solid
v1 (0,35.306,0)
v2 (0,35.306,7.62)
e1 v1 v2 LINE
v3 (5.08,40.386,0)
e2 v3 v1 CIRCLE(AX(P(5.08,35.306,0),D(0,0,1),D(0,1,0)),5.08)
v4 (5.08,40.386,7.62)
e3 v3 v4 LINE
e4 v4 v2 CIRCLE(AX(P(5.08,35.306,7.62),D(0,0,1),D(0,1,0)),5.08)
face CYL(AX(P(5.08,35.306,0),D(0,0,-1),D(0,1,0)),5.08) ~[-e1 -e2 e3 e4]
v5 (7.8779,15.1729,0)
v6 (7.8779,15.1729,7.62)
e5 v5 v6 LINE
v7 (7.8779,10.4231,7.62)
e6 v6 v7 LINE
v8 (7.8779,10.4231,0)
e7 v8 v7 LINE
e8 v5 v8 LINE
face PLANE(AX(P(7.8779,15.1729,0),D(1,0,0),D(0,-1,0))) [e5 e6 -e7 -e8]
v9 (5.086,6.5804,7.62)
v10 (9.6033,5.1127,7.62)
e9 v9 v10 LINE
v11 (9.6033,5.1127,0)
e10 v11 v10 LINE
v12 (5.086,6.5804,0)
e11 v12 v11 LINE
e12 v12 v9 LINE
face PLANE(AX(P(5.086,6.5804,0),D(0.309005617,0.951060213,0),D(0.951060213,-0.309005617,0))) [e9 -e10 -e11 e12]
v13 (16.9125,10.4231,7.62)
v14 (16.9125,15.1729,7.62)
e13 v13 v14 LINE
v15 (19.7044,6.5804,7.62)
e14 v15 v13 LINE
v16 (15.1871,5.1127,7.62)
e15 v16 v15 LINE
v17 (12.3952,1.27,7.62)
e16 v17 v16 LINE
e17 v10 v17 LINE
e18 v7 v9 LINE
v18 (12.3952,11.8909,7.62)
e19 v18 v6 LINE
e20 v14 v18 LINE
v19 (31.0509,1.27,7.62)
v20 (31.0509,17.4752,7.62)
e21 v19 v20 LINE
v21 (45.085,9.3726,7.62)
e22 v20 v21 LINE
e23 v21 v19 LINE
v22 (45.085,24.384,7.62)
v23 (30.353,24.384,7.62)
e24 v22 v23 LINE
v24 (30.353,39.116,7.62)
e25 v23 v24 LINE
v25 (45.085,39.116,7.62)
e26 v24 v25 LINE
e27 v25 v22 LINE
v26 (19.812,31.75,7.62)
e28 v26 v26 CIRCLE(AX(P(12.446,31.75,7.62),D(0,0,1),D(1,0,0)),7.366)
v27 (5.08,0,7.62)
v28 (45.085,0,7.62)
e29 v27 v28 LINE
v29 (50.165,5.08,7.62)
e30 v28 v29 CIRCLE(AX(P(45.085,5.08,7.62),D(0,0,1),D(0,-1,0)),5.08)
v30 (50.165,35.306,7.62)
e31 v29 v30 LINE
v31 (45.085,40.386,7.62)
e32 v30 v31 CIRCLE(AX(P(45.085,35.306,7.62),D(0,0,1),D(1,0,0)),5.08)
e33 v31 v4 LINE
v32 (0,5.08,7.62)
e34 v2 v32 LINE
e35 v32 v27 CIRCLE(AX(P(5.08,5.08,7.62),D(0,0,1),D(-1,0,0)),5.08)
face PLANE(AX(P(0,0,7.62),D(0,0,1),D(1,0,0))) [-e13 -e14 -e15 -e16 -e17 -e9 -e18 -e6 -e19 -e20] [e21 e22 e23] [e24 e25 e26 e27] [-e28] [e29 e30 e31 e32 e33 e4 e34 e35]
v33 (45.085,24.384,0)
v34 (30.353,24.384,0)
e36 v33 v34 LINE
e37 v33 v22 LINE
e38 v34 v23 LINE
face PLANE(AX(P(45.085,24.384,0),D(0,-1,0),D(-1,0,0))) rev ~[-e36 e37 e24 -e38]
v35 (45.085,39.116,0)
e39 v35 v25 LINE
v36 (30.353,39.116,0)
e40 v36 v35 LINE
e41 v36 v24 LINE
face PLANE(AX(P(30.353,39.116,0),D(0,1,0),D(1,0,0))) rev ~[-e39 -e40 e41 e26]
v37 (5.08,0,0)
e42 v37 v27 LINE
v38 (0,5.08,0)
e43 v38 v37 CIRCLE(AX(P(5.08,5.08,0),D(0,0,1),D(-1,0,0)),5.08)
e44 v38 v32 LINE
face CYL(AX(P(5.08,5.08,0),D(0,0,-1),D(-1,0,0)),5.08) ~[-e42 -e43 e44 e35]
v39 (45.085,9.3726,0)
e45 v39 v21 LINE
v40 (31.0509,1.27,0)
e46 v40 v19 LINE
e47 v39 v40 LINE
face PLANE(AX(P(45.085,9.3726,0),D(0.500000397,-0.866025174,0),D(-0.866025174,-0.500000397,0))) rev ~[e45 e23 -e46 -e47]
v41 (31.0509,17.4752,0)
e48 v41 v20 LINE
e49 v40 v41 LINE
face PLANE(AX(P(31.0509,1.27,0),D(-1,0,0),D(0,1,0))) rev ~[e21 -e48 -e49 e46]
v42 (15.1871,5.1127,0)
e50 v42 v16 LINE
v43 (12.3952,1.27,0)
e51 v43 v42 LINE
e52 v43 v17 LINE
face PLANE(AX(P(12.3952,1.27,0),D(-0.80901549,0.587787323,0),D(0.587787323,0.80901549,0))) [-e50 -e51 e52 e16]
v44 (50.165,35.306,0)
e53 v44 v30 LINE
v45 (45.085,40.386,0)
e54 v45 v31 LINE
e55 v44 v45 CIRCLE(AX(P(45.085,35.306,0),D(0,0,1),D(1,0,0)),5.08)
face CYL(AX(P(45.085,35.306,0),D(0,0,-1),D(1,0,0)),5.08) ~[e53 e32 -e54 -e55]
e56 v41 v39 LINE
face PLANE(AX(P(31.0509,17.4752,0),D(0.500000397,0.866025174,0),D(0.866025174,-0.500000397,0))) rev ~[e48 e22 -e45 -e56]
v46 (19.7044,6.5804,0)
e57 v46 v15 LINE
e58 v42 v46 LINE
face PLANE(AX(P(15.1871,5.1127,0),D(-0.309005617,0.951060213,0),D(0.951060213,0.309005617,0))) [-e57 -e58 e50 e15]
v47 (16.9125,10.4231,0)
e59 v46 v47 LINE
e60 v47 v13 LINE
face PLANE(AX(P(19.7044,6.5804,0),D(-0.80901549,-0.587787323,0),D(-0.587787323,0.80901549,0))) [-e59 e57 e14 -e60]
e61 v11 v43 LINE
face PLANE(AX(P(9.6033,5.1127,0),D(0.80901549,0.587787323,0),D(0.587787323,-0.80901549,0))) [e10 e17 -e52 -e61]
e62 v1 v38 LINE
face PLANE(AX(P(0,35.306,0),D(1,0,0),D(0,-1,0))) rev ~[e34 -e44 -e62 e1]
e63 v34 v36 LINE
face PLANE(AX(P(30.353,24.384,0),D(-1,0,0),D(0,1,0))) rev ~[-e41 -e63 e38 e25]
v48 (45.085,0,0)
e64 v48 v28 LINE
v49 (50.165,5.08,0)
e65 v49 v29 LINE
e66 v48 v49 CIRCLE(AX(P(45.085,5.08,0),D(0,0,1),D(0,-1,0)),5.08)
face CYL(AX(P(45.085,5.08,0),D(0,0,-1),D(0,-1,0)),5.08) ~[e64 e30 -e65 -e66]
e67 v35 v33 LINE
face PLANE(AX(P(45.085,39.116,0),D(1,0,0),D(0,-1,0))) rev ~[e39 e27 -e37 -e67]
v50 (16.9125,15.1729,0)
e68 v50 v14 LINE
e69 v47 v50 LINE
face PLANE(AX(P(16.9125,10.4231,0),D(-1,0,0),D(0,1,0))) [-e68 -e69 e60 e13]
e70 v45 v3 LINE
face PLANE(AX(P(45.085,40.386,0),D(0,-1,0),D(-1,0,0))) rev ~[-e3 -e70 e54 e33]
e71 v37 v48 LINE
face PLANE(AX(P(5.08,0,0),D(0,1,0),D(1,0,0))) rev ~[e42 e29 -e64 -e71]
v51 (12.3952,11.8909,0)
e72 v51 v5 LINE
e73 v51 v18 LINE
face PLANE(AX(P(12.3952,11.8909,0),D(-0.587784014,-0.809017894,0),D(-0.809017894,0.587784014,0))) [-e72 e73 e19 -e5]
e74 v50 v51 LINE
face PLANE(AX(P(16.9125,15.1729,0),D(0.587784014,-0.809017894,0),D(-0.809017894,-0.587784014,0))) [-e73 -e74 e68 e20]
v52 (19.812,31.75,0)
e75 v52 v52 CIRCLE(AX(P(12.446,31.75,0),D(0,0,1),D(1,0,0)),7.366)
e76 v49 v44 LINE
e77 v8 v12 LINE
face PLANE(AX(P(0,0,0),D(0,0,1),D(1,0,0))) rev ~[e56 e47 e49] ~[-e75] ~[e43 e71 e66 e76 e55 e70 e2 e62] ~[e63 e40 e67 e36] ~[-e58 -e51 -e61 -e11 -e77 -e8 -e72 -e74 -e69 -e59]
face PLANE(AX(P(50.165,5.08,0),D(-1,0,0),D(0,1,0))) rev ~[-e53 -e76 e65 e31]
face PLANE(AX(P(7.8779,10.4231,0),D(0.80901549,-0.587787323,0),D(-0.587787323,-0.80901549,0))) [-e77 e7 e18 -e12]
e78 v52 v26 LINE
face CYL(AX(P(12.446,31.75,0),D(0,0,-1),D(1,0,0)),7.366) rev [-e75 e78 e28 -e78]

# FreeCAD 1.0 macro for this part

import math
import FreeCAD as App
import Part
import Sketcher
from FreeCAD import Vector
Q = App.Units.Quantity

doc = App.newDocument("Part")
body = doc.addObject("PartDesign::Body", "Body")

# Sketch on XY plane
sketch1 = doc.addObject("Sketcher::SketchObject", "Sketch")
body.addObject(sketch1)
sketch1.AttachmentSupport = (doc.XY_Plane, [""])
sketch1.MapMode = "FlatFace"
sketch1.addGeometry(Part.ArcOfCircle(Part.Circle(Vector(5.08, 5.08, 0), Vector(0, 0, 1), 5.08), math.radians(180), math.radians(270)), False)
sketch1.addGeometry(Part.LineSegment(Vector(5.08, 0, 0), Vector(45.085, 0, 0)), False)
sketch1.addGeometry(Part.ArcOfCircle(Part.Circle(Vector(45.085, 5.08, 0), Vector(0, 0, 1), 5.08), math.radians(-90), math.radians(0)), False)
sketch1.addGeometry(Part.LineSegment(Vector(50.165, 5.08, 0), Vector(50.165, 35.306, 0)), False)
sketch1.addGeometry(Part.ArcOfCircle(Part.Circle(Vector(45.085, 35.306, 0), Vector(0, 0, 1), 5.08), math.radians(0), math.radians(90)), False)
sketch1.addGeometry(Part.LineSegment(Vector(45.085, 40.386, 0), Vector(5.08, 40.386, 0)), False)
sketch1.addGeometry(Part.ArcOfCircle(Part.Circle(Vector(5.08, 35.306, 0), Vector(0, 0, 1), 5.08), math.radians(90), math.radians(180)), False)
sketch1.addGeometry(Part.LineSegment(Vector(0, 35.306, 0), Vector(0, 5.08, 0)), False)
sketch1.addGeometry(Part.LineSegment(Vector(7.8779, 10.4231, 0), Vector(7.8779, 15.1729, 0)), False)
sketch1.addGeometry(Part.LineSegment(Vector(7.8779, 15.1729, 0), Vector(12.3952, 11.8909, 0)), False)
sketch1.addGeometry(Part.LineSegment(Vector(12.3952, 11.8909, 0), Vector(16.9125, 15.1729, 0)), False)
sketch1.addGeometry(Part.LineSegment(Vector(16.9125, 15.1729, 0), Vector(16.9125, 10.4231, 0)), False)
sketch1.addGeometry(Part.LineSegment(Vector(16.9125, 10.4231, 0), Vector(19.7044, 6.5804, 0)), False)
sketch1.addGeometry(Part.LineSegment(Vector(19.7044, 6.5804, 0), Vector(15.1871, 5.1127, 0)), False)
sketch1.addGeometry(Part.LineSegment(Vector(15.1871, 5.1127, 0), Vector(12.3952, 1.27, 0)), False)
sketch1.addGeometry(Part.LineSegment(Vector(12.3952, 1.27, 0), Vector(9.6033, 5.1127, 0)), False)
sketch1.addGeometry(Part.LineSegment(Vector(9.6033, 5.1127, 0), Vector(5.086, 6.5804, 0)), False)
sketch1.addGeometry(Part.LineSegment(Vector(5.086, 6.5804, 0), Vector(7.8779, 10.4231, 0)), False)
sketch1.addGeometry(Part.LineSegment(Vector(31.0509, 1.27, 0), Vector(31.0509, 17.4752, 0)), False)
sketch1.addGeometry(Part.LineSegment(Vector(31.0509, 17.4752, 0), Vector(45.085, 9.3726, 0)), False)
sketch1.addGeometry(Part.LineSegment(Vector(45.085, 9.3726, 0), Vector(31.0509, 1.27, 0)), False)
sketch1.addGeometry(Part.Circle(Vector(12.446, 31.75, 0), Vector(0, 0, 1), 7.366), False)
sketch1.addGeometry(Part.LineSegment(Vector(30.353, 24.384, 0), Vector(30.353, 39.116, 0)), False)
sketch1.addGeometry(Part.LineSegment(Vector(30.353, 39.116, 0), Vector(45.085, 39.116, 0)), False)
sketch1.addGeometry(Part.LineSegment(Vector(45.085, 39.116, 0), Vector(45.085, 24.384, 0)), False)
sketch1.addGeometry(Part.LineSegment(Vector(45.085, 24.384, 0), Vector(30.353, 24.384, 0)), False)
sketch1.addConstraint(Sketcher.Constraint("Tangent", 0, 2, 1, 1))
sketch1.addConstraint(Sketcher.Constraint("Tangent", 1, 2, 2, 1))
sketch1.addConstraint(Sketcher.Constraint("Tangent", 2, 2, 3, 1))
sketch1.addConstraint(Sketcher.Constraint("Tangent", 3, 2, 4, 1))
sketch1.addConstraint(Sketcher.Constraint("Tangent", 4, 2, 5, 1))
sketch1.addConstraint(Sketcher.Constraint("Tangent", 5, 2, 6, 1))
sketch1.addConstraint(Sketcher.Constraint("Tangent", 6, 2, 7, 1))
sketch1.addConstraint(Sketcher.Constraint("Tangent", 7, 2, 0, 1))
sketch1.addConstraint(Sketcher.Constraint("Coincident", 8, 2, 9, 1))
sketch1.addConstraint(Sketcher.Constraint("Coincident", 9, 2, 10, 1))
sketch1.addConstraint(Sketcher.Constraint("Coincident", 10, 2, 11, 1))
sketch1.addConstraint(Sketcher.Constraint("Coincident", 11, 2, 12, 1))
sketch1.addConstraint(Sketcher.Constraint("Coincident", 12, 2, 13, 1))
sketch1.addConstraint(Sketcher.Constraint("Coincident", 13, 2, 14, 1))
sketch1.addConstraint(Sketcher.Constraint("Coincident", 14, 2, 15, 1))
sketch1.addConstraint(Sketcher.Constraint("Coincident", 15, 2, 16, 1))
sketch1.addConstraint(Sketcher.Constraint("Coincident", 16, 2, 17, 1))
sketch1.addConstraint(Sketcher.Constraint("Coincident", 17, 2, 8, 1))
sketch1.addConstraint(Sketcher.Constraint("Coincident", 18, 2, 19, 1))
sketch1.addConstraint(Sketcher.Constraint("Coincident", 19, 2, 20, 1))
sketch1.addConstraint(Sketcher.Constraint("Coincident", 20, 2, 18, 1))
sketch1.addConstraint(Sketcher.Constraint("Coincident", 22, 2, 23, 1))
sketch1.addConstraint(Sketcher.Constraint("Coincident", 23, 2, 24, 1))
sketch1.addConstraint(Sketcher.Constraint("Coincident", 24, 2, 25, 1))
sketch1.addConstraint(Sketcher.Constraint("Coincident", 25, 2, 22, 1))
sketch1.addConstraint(Sketcher.Constraint("Horizontal", 1))
sketch1.addConstraint(Sketcher.Constraint("Vertical", 3))
sketch1.addConstraint(Sketcher.Constraint("Horizontal", 5))
sketch1.addConstraint(Sketcher.Constraint("Vertical", 7))
sketch1.addConstraint(Sketcher.Constraint("Vertical", 8))
sketch1.addConstraint(Sketcher.Constraint("Vertical", 11))
sketch1.addConstraint(Sketcher.Constraint("Vertical", 18))
sketch1.addConstraint(Sketcher.Constraint("Vertical", 22))
sketch1.addConstraint(Sketcher.Constraint("Horizontal", 23))
sketch1.addConstraint(Sketcher.Constraint("Vertical", 24))
sketch1.addConstraint(Sketcher.Constraint("Horizontal", 25))
sketch1.addConstraint(Sketcher.Constraint("Equal", 0, 2))
sketch1.addConstraint(Sketcher.Constraint("Equal", 2, 4))
sketch1.addConstraint(Sketcher.Constraint("Equal", 4, 6))
sketch1.addConstraint(Sketcher.Constraint("PointOnObject", 0, 2, -1))
sketch1.addConstraint(Sketcher.Constraint("PointOnObject", 6, 2, -2))
sketch1.addConstraint(Sketcher.Constraint("Perpendicular", 10, 12))
sketch1.addConstraint(Sketcher.Constraint("Perpendicular", 9, 14))
sketch1.addConstraint(Sketcher.Constraint("Parallel", 12, 15))
sketch1.addConstraint(Sketcher.Constraint("Parallel", 14, 17))
sketch1.addConstraint(Sketcher.Constraint("Horizontal", 8, 2, 10, 2))
sketch1.addConstraint(Sketcher.Constraint("Horizontal", 13, 2, 15, 2))
sketch1.addConstraint(Sketcher.Constraint("Horizontal", 12, 2, 16, 2))
sketch1.addConstraint(Sketcher.Constraint("Horizontal", 11, 2, 17, 2))
sketch1.addConstraint(Sketcher.Constraint("Horizontal", 14, 2, 20, 2))
sketch1.addConstraint(Sketcher.Constraint("Vertical", 9, 2, 14, 2))
sketch1.addConstraint(Sketcher.Constraint("Vertical", 4, 2, 19, 2))
sketch1.addConstraint(Sketcher.Constraint("Vertical", 19, 2, 23, 2))
sketch1.addConstraint(Sketcher.Constraint("Equal", 25, 22))
sketch1.addConstraint(Sketcher.Constraint("Equal", 9, 10))
sketch1.addConstraint(Sketcher.Constraint("Equal", 12, 13))
sketch1.addConstraint(Sketcher.Constraint("Equal", 13, 14))
sketch1.addConstraint(Sketcher.Constraint("Equal", 19, 20))
sketch1.addConstraint(Sketcher.Constraint("Radius", 0, Q("0.2 in")))
sketch1.addConstraint(Sketcher.Constraint("Diameter", 21, Q("0.58 in")))
sketch1.addConstraint(Sketcher.Constraint("DistanceX", 23, 1, 23, 2, Q("0.58 in")))
sketch1.addConstraint(Sketcher.Constraint("DistanceY", 8, 1, 8, 2, Q("0.187 in")))
sketch1.addConstraint(Sketcher.Constraint("DistanceY", 18, 1, 18, 2, Q("0.638 in")))
sketch1.addConstraint(Sketcher.Constraint("DistanceX", -1, 1, 21, 3, Q("0.49 in")))
sketch1.addConstraint(Sketcher.Constraint("DistanceY", -1, 1, 4, 2, Q("1.59 in")))
sketch1.addConstraint(Sketcher.Constraint("DistanceY", -1, 1, 14, 2, Q("0.05 in")))
sketch1.addConstraint(Sketcher.Constraint("DistanceY", 21, 3, 4, 2, Q("0.34 in")))
sketch1.addConstraint(Sketcher.Constraint("DistanceY", 22, 2, 4, 2, Q("0.05 in")))
sketch1.addConstraint(Sketcher.Constraint("Distance", 12, Q("0.187 in")))
sketch1.addConstraint(Sketcher.Constraint("Distance", 19, Q("0.638 in")))
sketch1.addConstraint(Sketcher.Constraint("DistanceX", -1, 1, 2, 2, Q("1.975 in")))
sketch1.addConstraint(Sketcher.Constraint("DistanceX", -1, 1, 9, 2, Q("0.488 in")))
sketch1.addConstraint(Sketcher.Constraint("Angle", 9, Q("-36 deg")))
sketch1.addConstraint(Sketcher.Constraint("Angle", 13, Q("-162.0007 deg")))
pad1 = doc.addObject("PartDesign::Pad", "Pad")
body.addObject(pad1)
pad1.Profile = sketch1
pad1.Length = Q("0.3 in")

doc.recompute()
